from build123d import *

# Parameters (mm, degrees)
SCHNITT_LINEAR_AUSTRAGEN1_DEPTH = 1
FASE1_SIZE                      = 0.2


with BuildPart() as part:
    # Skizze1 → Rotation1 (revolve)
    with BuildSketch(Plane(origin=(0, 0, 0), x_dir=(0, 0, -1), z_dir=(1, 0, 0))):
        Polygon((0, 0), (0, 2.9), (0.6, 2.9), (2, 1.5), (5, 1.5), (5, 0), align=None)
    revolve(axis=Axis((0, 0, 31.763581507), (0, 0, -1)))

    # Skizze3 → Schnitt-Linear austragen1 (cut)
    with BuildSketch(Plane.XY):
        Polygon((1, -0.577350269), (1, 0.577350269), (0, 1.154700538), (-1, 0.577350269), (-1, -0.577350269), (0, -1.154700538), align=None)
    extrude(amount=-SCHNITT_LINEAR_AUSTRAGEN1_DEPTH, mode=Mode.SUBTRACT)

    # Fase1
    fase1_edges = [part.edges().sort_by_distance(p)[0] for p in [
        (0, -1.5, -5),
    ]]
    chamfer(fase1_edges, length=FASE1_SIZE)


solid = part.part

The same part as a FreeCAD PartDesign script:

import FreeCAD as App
import Part
import Sketcher

V = App.Vector
Q = App.Units.Quantity


def edges_at(feature, points):
    """Names of the edges that pass closest to the given points."""
    edges = feature.Shape.Edges
    near = lambda p: min(range(len(edges)), key=lambda i: edges[i].distToShape(Part.Vertex(*p))[0])
    return sorted({f"Edge{near(p) + 1}" for p in points})


def add_polygon(sketch, points):
    """Adds a closed chain of lines whose ends are joined by coincident constraints."""
    first, n = sketch.GeometryCount, len(points)
    for a, b in zip(points, points[1:] + points[:1]):
        sketch.addGeometry(Part.LineSegment(App.Vector(*a, 0), App.Vector(*b, 0)), False)
    for i in range(n):
        sketch.addConstraint(Sketcher.Constraint("Coincident", first + i, 2, first + (i + 1) % n, 1))

doc = App.newDocument("Part")
body = doc.addObject("PartDesign::Body", "Body")

sketch1 = body.newObject("Sketcher::SketchObject", "Sketch")
sketch1.AttachmentSupport = (doc.getObject("YZ_Plane"), [""])
sketch1.MapMode = "FlatFace"
add_polygon(sketch1, [(2.9, 0), (0, 0), (0, -5), (1.5, -5), (1.5, -2), (2.9, -0.6)])
sketch1.addConstraint([
    Sketcher.Constraint("Horizontal", 0),
    Sketcher.Constraint("Vertical", 1),
    Sketcher.Constraint("Horizontal", 2),
    Sketcher.Constraint("Vertical", 3),
    Sketcher.Constraint("Vertical", 5),
    Sketcher.Constraint("Coincident", 0, 2, -1, 1),
    Sketcher.Constraint("DistanceY", 1, 2, 1, 1, Q("5 mm")),
    Sketcher.Constraint("DistanceY", 3, 1, 3, 2, Q("3 mm")),
    Sketcher.Constraint("Angle", 4, Q("45 deg")),
    Sketcher.Constraint("DistanceX", 0, 2, 0, 1, Q("2.9 mm")),
    Sketcher.Constraint("DistanceX", 2, 1, 2, 2, Q("1.5 mm")),
])
revolution = body.newObject("PartDesign::Revolution", "Revolution")
revolution.Profile = sketch1
revolution.ReferenceAxis = (sketch1, ["V_Axis"])
revolution.Angle = 360

sketch2 = body.newObject("Sketcher::SketchObject", "Sketch001")
sketch2.AttachmentSupport = (doc.getObject("XY_Plane"), [""])
sketch2.MapMode = "FlatFace"
add_polygon(sketch2, [(1, -0.57735), (1, 0.57735), (0, 1.154701), (-1, 0.57735), (-1, -0.57735), (0, -1.154701)])
sketch2.addConstraint([
    Sketcher.Constraint("Vertical", 0),
    Sketcher.Constraint("Vertical", 3),
    Sketcher.Constraint("Symmetric", 0, 2, 3, 2, -1, 1),
    Sketcher.Constraint("Symmetric", 1, 2, 4, 2, -1, 1),
    Sketcher.Constraint("PointOnObject", 1, 2, -2),
    Sketcher.Constraint("Parallel", 2, 5),
    Sketcher.Constraint("Horizontal", 0, 2, 2, 2),
    Sketcher.Constraint("Angle", 1, Q("150 deg")),
    Sketcher.Constraint("DistanceX", -1, 1, 0, 2, Q("1 mm")),
    Sketcher.Constraint("DistanceY", 0, 1, 0, 2, Q("1.154701 mm")),
])
pocket1 = body.newObject("PartDesign::Pocket", "Pocket")
pocket1.Profile = sketch2
pocket1.Length = 1
doc.recompute()

chamfer = body.newObject("PartDesign::Chamfer", "Chamfer")
chamfer.Base = (pocket1, edges_at(pocket1, [(0, -1.5, -5)]))
chamfer.Size = 0.2

doc.recompute()
